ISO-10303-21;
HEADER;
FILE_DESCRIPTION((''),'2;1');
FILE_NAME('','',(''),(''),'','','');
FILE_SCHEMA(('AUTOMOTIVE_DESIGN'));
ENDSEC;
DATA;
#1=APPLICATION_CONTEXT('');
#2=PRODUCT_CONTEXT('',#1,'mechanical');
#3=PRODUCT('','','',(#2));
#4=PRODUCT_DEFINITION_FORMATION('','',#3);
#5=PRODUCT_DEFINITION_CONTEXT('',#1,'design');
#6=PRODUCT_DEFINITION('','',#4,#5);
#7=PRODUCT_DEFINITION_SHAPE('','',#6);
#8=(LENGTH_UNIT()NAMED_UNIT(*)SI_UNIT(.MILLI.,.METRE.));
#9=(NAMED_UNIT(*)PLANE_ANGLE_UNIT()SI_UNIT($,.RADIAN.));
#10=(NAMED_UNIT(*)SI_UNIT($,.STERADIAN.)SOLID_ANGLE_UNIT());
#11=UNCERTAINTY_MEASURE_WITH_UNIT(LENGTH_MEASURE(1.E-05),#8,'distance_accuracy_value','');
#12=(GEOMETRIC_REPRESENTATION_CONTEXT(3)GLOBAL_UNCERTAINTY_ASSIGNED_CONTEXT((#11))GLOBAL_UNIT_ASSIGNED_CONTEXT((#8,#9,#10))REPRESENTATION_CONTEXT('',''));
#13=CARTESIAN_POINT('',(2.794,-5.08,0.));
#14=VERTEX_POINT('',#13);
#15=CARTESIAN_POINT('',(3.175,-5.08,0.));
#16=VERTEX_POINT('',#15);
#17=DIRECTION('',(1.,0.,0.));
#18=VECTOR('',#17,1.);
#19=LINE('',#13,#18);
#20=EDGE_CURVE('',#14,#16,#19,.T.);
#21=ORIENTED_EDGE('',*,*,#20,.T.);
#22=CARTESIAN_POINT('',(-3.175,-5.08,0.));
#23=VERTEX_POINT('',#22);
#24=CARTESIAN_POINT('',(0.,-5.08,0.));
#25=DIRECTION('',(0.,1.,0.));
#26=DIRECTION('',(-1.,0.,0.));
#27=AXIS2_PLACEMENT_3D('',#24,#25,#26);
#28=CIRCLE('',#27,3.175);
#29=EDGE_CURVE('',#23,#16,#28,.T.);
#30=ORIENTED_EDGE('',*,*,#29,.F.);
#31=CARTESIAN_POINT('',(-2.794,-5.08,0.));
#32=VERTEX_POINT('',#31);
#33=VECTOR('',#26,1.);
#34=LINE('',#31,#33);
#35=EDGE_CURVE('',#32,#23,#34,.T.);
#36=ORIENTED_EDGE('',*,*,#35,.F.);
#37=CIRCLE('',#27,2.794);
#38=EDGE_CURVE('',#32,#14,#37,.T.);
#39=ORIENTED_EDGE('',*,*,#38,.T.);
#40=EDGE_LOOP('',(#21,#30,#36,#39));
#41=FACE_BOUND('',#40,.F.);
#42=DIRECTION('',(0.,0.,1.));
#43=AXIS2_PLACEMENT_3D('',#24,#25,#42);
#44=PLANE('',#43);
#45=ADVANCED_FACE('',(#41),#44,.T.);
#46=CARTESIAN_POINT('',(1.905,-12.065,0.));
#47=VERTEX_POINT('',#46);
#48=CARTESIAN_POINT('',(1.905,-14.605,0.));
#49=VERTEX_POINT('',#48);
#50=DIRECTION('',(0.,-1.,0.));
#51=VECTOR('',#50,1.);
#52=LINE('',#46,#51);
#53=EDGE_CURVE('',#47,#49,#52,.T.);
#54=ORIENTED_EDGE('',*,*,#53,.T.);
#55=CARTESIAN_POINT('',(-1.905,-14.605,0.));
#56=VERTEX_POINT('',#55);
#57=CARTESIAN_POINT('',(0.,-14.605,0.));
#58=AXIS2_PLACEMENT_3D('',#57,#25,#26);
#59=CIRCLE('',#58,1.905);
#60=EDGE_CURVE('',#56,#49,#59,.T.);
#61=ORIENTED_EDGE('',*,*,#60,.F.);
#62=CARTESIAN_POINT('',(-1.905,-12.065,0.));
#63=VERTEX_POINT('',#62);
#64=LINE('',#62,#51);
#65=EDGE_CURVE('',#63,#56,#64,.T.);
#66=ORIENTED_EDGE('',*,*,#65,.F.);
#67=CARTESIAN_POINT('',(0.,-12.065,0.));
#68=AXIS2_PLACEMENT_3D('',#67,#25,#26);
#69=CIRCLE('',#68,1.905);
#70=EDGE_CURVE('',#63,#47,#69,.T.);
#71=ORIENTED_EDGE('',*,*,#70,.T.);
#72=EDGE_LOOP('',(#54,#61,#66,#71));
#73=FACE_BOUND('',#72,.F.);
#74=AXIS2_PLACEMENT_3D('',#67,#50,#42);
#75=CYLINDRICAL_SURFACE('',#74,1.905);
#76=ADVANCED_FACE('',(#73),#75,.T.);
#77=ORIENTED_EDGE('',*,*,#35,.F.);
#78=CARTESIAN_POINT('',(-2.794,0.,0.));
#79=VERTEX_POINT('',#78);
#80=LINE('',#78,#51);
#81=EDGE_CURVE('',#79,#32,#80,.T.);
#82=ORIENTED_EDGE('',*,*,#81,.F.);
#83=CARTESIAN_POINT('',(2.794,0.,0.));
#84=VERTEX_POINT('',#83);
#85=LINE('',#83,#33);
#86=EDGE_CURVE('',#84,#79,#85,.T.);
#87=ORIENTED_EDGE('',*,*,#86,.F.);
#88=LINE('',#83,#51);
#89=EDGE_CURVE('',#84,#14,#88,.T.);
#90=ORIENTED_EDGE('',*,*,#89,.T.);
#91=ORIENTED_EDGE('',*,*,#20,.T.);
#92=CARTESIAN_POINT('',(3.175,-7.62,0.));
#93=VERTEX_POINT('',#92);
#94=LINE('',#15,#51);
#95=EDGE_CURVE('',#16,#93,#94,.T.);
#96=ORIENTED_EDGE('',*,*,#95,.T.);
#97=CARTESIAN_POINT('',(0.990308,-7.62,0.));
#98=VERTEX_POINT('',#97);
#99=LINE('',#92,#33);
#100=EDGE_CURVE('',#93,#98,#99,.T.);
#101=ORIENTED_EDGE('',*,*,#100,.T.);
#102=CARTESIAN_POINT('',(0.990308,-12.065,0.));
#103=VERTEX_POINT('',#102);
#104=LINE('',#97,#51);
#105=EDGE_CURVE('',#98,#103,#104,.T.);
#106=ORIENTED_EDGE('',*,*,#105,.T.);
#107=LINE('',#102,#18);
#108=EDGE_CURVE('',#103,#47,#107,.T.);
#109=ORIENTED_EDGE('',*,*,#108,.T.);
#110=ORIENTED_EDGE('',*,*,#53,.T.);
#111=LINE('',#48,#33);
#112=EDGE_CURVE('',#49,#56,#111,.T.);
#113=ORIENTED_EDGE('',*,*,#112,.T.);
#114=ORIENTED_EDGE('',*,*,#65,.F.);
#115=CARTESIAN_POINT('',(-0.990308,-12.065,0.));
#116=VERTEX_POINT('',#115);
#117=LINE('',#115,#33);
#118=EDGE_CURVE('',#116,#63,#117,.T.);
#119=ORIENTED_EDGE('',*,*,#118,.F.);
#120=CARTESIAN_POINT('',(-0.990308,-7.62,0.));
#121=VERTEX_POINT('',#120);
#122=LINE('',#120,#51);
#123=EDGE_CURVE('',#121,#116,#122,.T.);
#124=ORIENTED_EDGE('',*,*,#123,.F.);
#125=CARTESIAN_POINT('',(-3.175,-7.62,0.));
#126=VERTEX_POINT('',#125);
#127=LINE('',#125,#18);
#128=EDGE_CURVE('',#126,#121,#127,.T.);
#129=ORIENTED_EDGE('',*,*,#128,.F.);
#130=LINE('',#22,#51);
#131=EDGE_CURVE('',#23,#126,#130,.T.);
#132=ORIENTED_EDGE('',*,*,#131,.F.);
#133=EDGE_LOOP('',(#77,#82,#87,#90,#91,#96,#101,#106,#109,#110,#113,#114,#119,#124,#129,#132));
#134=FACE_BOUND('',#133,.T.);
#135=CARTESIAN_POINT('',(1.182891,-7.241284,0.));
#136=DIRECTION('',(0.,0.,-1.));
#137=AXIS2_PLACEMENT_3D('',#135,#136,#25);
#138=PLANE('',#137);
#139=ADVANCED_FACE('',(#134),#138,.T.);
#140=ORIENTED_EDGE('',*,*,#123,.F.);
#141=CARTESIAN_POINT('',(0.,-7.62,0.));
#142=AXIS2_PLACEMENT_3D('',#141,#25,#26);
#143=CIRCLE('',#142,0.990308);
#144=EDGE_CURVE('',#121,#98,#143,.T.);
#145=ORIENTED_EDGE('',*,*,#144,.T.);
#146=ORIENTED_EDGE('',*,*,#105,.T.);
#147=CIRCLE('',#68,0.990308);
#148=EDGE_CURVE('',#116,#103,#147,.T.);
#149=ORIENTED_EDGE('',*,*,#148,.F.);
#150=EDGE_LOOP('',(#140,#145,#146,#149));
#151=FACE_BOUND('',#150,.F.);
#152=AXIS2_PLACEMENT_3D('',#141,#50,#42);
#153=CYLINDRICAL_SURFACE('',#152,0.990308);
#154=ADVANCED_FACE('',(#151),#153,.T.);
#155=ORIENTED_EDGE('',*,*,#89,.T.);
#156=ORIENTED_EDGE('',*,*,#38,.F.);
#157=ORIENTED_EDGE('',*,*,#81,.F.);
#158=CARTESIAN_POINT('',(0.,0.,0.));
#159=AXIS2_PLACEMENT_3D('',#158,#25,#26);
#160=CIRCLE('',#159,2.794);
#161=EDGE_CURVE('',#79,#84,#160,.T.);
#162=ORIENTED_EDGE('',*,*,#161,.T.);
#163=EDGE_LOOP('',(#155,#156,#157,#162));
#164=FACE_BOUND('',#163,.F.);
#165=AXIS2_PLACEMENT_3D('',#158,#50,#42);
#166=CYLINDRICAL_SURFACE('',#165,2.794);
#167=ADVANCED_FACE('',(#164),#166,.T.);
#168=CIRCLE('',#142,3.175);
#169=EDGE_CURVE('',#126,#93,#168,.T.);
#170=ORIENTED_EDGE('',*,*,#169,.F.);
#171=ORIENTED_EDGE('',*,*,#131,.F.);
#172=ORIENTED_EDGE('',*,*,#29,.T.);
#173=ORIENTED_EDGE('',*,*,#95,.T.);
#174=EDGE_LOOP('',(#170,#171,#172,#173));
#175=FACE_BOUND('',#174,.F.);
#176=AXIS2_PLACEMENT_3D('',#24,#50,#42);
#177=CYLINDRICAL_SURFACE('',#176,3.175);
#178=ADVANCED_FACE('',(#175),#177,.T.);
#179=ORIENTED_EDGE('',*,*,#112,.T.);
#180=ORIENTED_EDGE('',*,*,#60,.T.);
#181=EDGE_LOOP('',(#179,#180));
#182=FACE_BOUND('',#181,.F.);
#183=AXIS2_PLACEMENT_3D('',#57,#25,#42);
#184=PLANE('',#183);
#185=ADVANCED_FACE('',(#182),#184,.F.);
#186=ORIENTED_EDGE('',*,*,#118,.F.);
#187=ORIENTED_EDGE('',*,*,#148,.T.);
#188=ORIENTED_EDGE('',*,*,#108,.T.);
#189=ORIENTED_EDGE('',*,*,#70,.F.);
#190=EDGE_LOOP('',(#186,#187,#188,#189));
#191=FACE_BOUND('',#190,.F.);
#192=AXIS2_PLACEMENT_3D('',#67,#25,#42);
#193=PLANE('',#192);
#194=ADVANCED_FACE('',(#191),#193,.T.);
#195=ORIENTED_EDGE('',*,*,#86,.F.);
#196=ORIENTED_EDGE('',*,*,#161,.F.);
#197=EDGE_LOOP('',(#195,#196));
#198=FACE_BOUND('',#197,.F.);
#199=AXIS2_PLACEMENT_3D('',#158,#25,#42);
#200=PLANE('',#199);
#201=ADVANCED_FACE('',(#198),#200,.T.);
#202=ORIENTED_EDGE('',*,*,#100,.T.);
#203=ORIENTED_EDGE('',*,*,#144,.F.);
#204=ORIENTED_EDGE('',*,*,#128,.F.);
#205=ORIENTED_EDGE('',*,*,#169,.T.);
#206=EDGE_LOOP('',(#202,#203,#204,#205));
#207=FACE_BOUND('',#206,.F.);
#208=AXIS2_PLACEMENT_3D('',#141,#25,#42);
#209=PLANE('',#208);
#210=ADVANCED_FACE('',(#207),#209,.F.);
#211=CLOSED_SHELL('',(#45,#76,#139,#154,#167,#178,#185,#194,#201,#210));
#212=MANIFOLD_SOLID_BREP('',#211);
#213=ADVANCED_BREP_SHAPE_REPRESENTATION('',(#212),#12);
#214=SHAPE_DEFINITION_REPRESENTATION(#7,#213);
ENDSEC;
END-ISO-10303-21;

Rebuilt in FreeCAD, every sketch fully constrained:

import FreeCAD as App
import Part
import Sketcher
Q = App.Units.Quantity

doc = App.newDocument("Part")
body = doc.addObject("PartDesign::Body", "Body")

# Sketch on YZ plane
sketch1 = doc.addObject("Sketcher::SketchObject", "Sketch")
body.addObject(sketch1)
sketch1.AttachmentSupport = (doc.YZ_Plane, [""])
sketch1.MapMode = "FlatFace"
sketch1.addGeometry([
    Part.LineSegment(App.Vector(-14.605, 0, 0), App.Vector(0, 0, 0)),  # 0
    Part.LineSegment(App.Vector(0, 0, 0), App.Vector(0, 2.794, 0)),  # 1
    Part.LineSegment(App.Vector(0, 2.794, 0), App.Vector(-5.08, 2.794, 0)),  # 2
    Part.LineSegment(App.Vector(-5.08, 2.794, 0), App.Vector(-5.08, 3.175, 0)),  # 3
    Part.LineSegment(App.Vector(-5.08, 3.175, 0), App.Vector(-7.62, 3.175, 0)),  # 4
    Part.LineSegment(App.Vector(-7.62, 3.175, 0), App.Vector(-7.62, 0.990308, 0)),  # 5
    Part.LineSegment(App.Vector(-7.62, 0.990308, 0), App.Vector(-12.065, 0.990308, 0)),  # 6
    Part.LineSegment(App.Vector(-12.065, 0.990308, 0), App.Vector(-12.065, 1.905, 0)),  # 7
    Part.LineSegment(App.Vector(-12.065, 1.905, 0), App.Vector(-14.605, 1.905, 0)),  # 8
    Part.LineSegment(App.Vector(-14.605, 1.905, 0), App.Vector(-14.605, 0, 0)),  # 9
], False)
sketch1.addConstraint([
    Sketcher.Constraint("Coincident", 0, 2, 1, 1),
    Sketcher.Constraint("Coincident", 1, 2, 2, 1),
    Sketcher.Constraint("Coincident", 2, 2, 3, 1),
    Sketcher.Constraint("Coincident", 3, 2, 4, 1),
    Sketcher.Constraint("Coincident", 4, 2, 5, 1),
    Sketcher.Constraint("Coincident", 5, 2, 6, 1),
    Sketcher.Constraint("Coincident", 6, 2, 7, 1),
    Sketcher.Constraint("Coincident", 7, 2, 8, 1),
    Sketcher.Constraint("Coincident", 8, 2, 9, 1),
    Sketcher.Constraint("Coincident", 9, 2, 0, 1),
    Sketcher.Constraint("Horizontal", 0),
    Sketcher.Constraint("Vertical", 1),
    Sketcher.Constraint("Horizontal", 2),
    Sketcher.Constraint("Vertical", 3),
    Sketcher.Constraint("Horizontal", 4),
    Sketcher.Constraint("Vertical", 5),
    Sketcher.Constraint("Horizontal", 6),
    Sketcher.Constraint("Vertical", 7),
    Sketcher.Constraint("Horizontal", 8),
    Sketcher.Constraint("Vertical", 9),
    Sketcher.Constraint("Coincident", 0, 2, -1, 1),
    Sketcher.Constraint("Equal", 4, 8),
    Sketcher.Constraint("DistanceX", 2, 2, 2, 1, Q("0.2 in")),
    Sketcher.Constraint("DistanceX", 4, 2, 4, 1, Q("0.1 in")),
    Sketcher.Constraint("DistanceY", 1, 1, 1, 2, Q("0.11 in")),
    Sketcher.Constraint("DistanceX", 0, 1, 0, 2, Q("0.575 in")),
    Sketcher.Constraint("DistanceY", 3, 1, 3, 2, Q("0.015 in")),
    Sketcher.Constraint("DistanceY", 9, 2, 9, 1, Q("0.075 in")),
    Sketcher.Constraint("DistanceY", 5, 2, 5, 1, 2.184692),
])
revolution = doc.addObject("PartDesign::Revolution", "Revolution")
body.addObject(revolution)
revolution.Profile = sketch1
revolution.ReferenceAxis = (sketch1, ["H_Axis"])
revolution.Angle = 90
revolution.Reversed = True

# Sketch on YZ plane
sketch2 = doc.addObject("Sketcher::SketchObject", "Sketch001")
body.addObject(sketch2)
sketch2.AttachmentSupport = (doc.YZ_Plane, [""])
sketch2.MapMode = "FlatFace"
sketch2.addGeometry([
    Part.LineSegment(App.Vector(-14.605, 0, 0), App.Vector(0, 0, 0)),  # 0
    Part.LineSegment(App.Vector(0, 0, 0), App.Vector(0, 2.794, 0)),  # 1
    Part.LineSegment(App.Vector(0, 2.794, 0), App.Vector(-5.08, 2.794, 0)),  # 2
    Part.LineSegment(App.Vector(-5.08, 2.794, 0), App.Vector(-5.08, 3.175, 0)),  # 3
    Part.LineSegment(App.Vector(-5.08, 3.175, 0), App.Vector(-7.62, 3.175, 0)),  # 4
    Part.LineSegment(App.Vector(-7.62, 3.175, 0), App.Vector(-7.62, 0.990308, 0)),  # 5
    Part.LineSegment(App.Vector(-7.62, 0.990308, 0), App.Vector(-12.065, 0.990308, 0)),  # 6
    Part.LineSegment(App.Vector(-12.065, 0.990308, 0), App.Vector(-12.065, 1.905, 0)),  # 7
    Part.LineSegment(App.Vector(-12.065, 1.905, 0), App.Vector(-14.605, 1.905, 0)),  # 8
    Part.LineSegment(App.Vector(-14.605, 1.905, 0), App.Vector(-14.605, 0, 0)),  # 9
], False)
sketch2.addConstraint([
    Sketcher.Constraint("Coincident", 0, 2, 1, 1),
    Sketcher.Constraint("Coincident", 1, 2, 2, 1),
    Sketcher.Constraint("Coincident", 2, 2, 3, 1),
    Sketcher.Constraint("Coincident", 3, 2, 4, 1),
    Sketcher.Constraint("Coincident", 4, 2, 5, 1),
    Sketcher.Constraint("Coincident", 5, 2, 6, 1),
    Sketcher.Constraint("Coincident", 6, 2, 7, 1),
    Sketcher.Constraint("Coincident", 7, 2, 8, 1),
    Sketcher.Constraint("Coincident", 8, 2, 9, 1),
    Sketcher.Constraint("Coincident", 9, 2, 0, 1),
    Sketcher.Constraint("Horizontal", 0),
    Sketcher.Constraint("Vertical", 1),
    Sketcher.Constraint("Horizontal", 2),
    Sketcher.Constraint("Vertical", 3),
    Sketcher.Constraint("Horizontal", 4),
    Sketcher.Constraint("Vertical", 5),
    Sketcher.Constraint("Horizontal", 6),
    Sketcher.Constraint("Vertical", 7),
    Sketcher.Constraint("Horizontal", 8),
    Sketcher.Constraint("Vertical", 9),
    Sketcher.Constraint("Coincident", 0, 2, -1, 1),
    Sketcher.Constraint("Equal", 4, 8),
    Sketcher.Constraint("DistanceX", 2, 2, 2, 1, Q("0.2 in")),
    Sketcher.Constraint("DistanceX", 4, 2, 4, 1, Q("0.1 in")),
    Sketcher.Constraint("DistanceY", 1, 1, 1, 2, Q("0.11 in")),
    Sketcher.Constraint("DistanceX", 0, 1, 0, 2, Q("0.575 in")),
    Sketcher.Constraint("DistanceY", 3, 1, 3, 2, Q("0.015 in")),
    Sketcher.Constraint("DistanceY", 9, 2, 9, 1, Q("0.075 in")),
    Sketcher.Constraint("DistanceY", 5, 2, 5, 1, 2.184692),
])
revolution2 = doc.addObject("PartDesign::Revolution", "Revolution001")
body.addObject(revolution2)
revolution2.Profile = sketch2
revolution2.ReferenceAxis = (sketch2, ["H_Axis"])
revolution2.Angle = 90

doc.recompute()
